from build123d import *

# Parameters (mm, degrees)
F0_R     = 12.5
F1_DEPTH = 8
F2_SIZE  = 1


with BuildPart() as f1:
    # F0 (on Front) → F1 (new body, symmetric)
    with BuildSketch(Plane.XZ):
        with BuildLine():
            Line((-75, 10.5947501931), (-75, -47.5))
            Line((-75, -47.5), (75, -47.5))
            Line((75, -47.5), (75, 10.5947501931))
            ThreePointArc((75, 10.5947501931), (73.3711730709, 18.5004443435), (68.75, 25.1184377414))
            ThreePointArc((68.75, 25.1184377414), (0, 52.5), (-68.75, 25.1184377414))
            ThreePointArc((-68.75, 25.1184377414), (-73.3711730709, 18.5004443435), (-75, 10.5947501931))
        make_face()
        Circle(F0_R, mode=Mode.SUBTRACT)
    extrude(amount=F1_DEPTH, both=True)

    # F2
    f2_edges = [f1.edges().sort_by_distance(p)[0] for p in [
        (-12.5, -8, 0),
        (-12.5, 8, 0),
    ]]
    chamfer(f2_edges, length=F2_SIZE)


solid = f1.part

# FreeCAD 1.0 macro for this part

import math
import FreeCAD as App
import Part
import Sketcher

V = App.Vector
Q = App.Units.Quantity


def edges_at(feature, points):
    """Names of the edges that pass closest to the given points."""
    edges = feature.Shape.Edges
    near = lambda p: min(range(len(edges)), key=lambda i: edges[i].distToShape(Part.Vertex(*p))[0])
    return sorted({f"Edge{near(p) + 1}" for p in points})

doc = App.newDocument("Part")
params = doc.addObject("Spreadsheet::Sheet", "Params")
for row, (alias, value) in enumerate([
    ("sketch1_diameter", "25 mm"),
    ("sketch1_radius", "20 mm"),
    ("sketch1_radius2", "100 mm"),
    ("sketch1_width", "150 mm"),
    ("pad1_length", "16 mm"),
    ("chamfer_size", "1 mm"),
], start=1):
    params.set(f"A{row}", alias)
    params.set(f"B{row}", "=" + value)
    params.setAlias(f"B{row}", alias)

body = doc.addObject("PartDesign::Body", "Body")

# Sketch on XZ plane
sketch1 = doc.addObject("Sketcher::SketchObject", "Sketch")
body.addObject(sketch1)
sketch1.AttachmentSupport = (doc.XZ_Plane, [""])
sketch1.MapMode = "FlatFace"
sketch1.addGeometry(Part.LineSegment(V(-75, 11, 0), V(-75, -48, 0)), False)
sketch1.addGeometry(Part.LineSegment(V(-75, -48, 0), V(75, -48, 0)), False)
sketch1.addGeometry(Part.LineSegment(V(75, -48, 0), V(75, 11, 0)), False)
sketch1.addGeometry(Part.ArcOfCircle(Part.Circle(V(55, 11, 0), V(0, 0, 1), 20), math.radians(0), math.radians(47)), False)
sketch1.addGeometry(Part.ArcOfCircle(Part.Circle(V(0, -48, 0), V(0, 0, 1), 100), math.radians(47), math.radians(133)), False)
sketch1.addGeometry(Part.ArcOfCircle(Part.Circle(V(-55, 11, 0), V(0, 0, 1), 20), math.radians(133), math.radians(180)), False)
sketch1.addGeometry(Part.Circle(V(0, 0, 0), V(0, 0, 1), 12), False)
sketch1.addConstraint(Sketcher.Constraint("Coincident", 0, 2, 1, 1))
sketch1.addConstraint(Sketcher.Constraint("Coincident", 1, 2, 2, 1))
sketch1.addConstraint(Sketcher.Constraint("Tangent", 2, 2, 3, 1))
sketch1.addConstraint(Sketcher.Constraint("Tangent", 3, 2, 4, 1))
sketch1.addConstraint(Sketcher.Constraint("Tangent", 4, 2, 5, 1))
sketch1.addConstraint(Sketcher.Constraint("Tangent", 5, 2, 0, 1))
sketch1.addConstraint(Sketcher.Constraint("Vertical", 0))
sketch1.addConstraint(Sketcher.Constraint("Horizontal", 1))
sketch1.addConstraint(Sketcher.Constraint("Vertical", 2))
sketch1.addConstraint(Sketcher.Constraint("Coincident", 6, 3, -1, 1))
sketch1.addConstraint(Sketcher.Constraint("Equal", 3, 5))
sketch1.addConstraint(Sketcher.Constraint("Symmetric", 3, 3, 5, 3, -2))
sketch1.addConstraint(Sketcher.Constraint("Horizontal", 4, 3, 0, 2))
sketch1.addConstraint(Sketcher.Constraint("Diameter", 6, Q("25 mm")))
sketch1.addConstraint(Sketcher.Constraint("Radius", 3, Q("20 mm")))
sketch1.addConstraint(Sketcher.Constraint("Radius", 4, Q("100 mm")))
sketch1.addConstraint(Sketcher.Constraint("DistanceX", 1, 1, 1, 2, Q("150 mm")))
sketch1.addConstraint(Sketcher.Constraint("DistanceY", 4, 3, -1, 1, Q("47.5 mm")))
sketch1.setExpression("Constraints[13]", "Params.sketch1_diameter")
sketch1.setExpression("Constraints[14]", "Params.sketch1_radius")
sketch1.setExpression("Constraints[15]", "Params.sketch1_radius2")
sketch1.setExpression("Constraints[16]", "Params.sketch1_width")
pad1 = doc.addObject("PartDesign::Pad", "Pad")
body.addObject(pad1)
pad1.Profile = sketch1
pad1.setExpression("Length", "Params.pad1_length")
pad1.Midplane = True
doc.recompute()

chamfer = doc.addObject("PartDesign::Chamfer", "Chamfer")
body.addObject(chamfer)
chamfer.Base = (pad1, edges_at(pad1, [(-12.5, -8, 0), (-12.5, 8, 0)]))
chamfer.setExpression("Size", "Params.chamfer_size")

doc.recompute()
